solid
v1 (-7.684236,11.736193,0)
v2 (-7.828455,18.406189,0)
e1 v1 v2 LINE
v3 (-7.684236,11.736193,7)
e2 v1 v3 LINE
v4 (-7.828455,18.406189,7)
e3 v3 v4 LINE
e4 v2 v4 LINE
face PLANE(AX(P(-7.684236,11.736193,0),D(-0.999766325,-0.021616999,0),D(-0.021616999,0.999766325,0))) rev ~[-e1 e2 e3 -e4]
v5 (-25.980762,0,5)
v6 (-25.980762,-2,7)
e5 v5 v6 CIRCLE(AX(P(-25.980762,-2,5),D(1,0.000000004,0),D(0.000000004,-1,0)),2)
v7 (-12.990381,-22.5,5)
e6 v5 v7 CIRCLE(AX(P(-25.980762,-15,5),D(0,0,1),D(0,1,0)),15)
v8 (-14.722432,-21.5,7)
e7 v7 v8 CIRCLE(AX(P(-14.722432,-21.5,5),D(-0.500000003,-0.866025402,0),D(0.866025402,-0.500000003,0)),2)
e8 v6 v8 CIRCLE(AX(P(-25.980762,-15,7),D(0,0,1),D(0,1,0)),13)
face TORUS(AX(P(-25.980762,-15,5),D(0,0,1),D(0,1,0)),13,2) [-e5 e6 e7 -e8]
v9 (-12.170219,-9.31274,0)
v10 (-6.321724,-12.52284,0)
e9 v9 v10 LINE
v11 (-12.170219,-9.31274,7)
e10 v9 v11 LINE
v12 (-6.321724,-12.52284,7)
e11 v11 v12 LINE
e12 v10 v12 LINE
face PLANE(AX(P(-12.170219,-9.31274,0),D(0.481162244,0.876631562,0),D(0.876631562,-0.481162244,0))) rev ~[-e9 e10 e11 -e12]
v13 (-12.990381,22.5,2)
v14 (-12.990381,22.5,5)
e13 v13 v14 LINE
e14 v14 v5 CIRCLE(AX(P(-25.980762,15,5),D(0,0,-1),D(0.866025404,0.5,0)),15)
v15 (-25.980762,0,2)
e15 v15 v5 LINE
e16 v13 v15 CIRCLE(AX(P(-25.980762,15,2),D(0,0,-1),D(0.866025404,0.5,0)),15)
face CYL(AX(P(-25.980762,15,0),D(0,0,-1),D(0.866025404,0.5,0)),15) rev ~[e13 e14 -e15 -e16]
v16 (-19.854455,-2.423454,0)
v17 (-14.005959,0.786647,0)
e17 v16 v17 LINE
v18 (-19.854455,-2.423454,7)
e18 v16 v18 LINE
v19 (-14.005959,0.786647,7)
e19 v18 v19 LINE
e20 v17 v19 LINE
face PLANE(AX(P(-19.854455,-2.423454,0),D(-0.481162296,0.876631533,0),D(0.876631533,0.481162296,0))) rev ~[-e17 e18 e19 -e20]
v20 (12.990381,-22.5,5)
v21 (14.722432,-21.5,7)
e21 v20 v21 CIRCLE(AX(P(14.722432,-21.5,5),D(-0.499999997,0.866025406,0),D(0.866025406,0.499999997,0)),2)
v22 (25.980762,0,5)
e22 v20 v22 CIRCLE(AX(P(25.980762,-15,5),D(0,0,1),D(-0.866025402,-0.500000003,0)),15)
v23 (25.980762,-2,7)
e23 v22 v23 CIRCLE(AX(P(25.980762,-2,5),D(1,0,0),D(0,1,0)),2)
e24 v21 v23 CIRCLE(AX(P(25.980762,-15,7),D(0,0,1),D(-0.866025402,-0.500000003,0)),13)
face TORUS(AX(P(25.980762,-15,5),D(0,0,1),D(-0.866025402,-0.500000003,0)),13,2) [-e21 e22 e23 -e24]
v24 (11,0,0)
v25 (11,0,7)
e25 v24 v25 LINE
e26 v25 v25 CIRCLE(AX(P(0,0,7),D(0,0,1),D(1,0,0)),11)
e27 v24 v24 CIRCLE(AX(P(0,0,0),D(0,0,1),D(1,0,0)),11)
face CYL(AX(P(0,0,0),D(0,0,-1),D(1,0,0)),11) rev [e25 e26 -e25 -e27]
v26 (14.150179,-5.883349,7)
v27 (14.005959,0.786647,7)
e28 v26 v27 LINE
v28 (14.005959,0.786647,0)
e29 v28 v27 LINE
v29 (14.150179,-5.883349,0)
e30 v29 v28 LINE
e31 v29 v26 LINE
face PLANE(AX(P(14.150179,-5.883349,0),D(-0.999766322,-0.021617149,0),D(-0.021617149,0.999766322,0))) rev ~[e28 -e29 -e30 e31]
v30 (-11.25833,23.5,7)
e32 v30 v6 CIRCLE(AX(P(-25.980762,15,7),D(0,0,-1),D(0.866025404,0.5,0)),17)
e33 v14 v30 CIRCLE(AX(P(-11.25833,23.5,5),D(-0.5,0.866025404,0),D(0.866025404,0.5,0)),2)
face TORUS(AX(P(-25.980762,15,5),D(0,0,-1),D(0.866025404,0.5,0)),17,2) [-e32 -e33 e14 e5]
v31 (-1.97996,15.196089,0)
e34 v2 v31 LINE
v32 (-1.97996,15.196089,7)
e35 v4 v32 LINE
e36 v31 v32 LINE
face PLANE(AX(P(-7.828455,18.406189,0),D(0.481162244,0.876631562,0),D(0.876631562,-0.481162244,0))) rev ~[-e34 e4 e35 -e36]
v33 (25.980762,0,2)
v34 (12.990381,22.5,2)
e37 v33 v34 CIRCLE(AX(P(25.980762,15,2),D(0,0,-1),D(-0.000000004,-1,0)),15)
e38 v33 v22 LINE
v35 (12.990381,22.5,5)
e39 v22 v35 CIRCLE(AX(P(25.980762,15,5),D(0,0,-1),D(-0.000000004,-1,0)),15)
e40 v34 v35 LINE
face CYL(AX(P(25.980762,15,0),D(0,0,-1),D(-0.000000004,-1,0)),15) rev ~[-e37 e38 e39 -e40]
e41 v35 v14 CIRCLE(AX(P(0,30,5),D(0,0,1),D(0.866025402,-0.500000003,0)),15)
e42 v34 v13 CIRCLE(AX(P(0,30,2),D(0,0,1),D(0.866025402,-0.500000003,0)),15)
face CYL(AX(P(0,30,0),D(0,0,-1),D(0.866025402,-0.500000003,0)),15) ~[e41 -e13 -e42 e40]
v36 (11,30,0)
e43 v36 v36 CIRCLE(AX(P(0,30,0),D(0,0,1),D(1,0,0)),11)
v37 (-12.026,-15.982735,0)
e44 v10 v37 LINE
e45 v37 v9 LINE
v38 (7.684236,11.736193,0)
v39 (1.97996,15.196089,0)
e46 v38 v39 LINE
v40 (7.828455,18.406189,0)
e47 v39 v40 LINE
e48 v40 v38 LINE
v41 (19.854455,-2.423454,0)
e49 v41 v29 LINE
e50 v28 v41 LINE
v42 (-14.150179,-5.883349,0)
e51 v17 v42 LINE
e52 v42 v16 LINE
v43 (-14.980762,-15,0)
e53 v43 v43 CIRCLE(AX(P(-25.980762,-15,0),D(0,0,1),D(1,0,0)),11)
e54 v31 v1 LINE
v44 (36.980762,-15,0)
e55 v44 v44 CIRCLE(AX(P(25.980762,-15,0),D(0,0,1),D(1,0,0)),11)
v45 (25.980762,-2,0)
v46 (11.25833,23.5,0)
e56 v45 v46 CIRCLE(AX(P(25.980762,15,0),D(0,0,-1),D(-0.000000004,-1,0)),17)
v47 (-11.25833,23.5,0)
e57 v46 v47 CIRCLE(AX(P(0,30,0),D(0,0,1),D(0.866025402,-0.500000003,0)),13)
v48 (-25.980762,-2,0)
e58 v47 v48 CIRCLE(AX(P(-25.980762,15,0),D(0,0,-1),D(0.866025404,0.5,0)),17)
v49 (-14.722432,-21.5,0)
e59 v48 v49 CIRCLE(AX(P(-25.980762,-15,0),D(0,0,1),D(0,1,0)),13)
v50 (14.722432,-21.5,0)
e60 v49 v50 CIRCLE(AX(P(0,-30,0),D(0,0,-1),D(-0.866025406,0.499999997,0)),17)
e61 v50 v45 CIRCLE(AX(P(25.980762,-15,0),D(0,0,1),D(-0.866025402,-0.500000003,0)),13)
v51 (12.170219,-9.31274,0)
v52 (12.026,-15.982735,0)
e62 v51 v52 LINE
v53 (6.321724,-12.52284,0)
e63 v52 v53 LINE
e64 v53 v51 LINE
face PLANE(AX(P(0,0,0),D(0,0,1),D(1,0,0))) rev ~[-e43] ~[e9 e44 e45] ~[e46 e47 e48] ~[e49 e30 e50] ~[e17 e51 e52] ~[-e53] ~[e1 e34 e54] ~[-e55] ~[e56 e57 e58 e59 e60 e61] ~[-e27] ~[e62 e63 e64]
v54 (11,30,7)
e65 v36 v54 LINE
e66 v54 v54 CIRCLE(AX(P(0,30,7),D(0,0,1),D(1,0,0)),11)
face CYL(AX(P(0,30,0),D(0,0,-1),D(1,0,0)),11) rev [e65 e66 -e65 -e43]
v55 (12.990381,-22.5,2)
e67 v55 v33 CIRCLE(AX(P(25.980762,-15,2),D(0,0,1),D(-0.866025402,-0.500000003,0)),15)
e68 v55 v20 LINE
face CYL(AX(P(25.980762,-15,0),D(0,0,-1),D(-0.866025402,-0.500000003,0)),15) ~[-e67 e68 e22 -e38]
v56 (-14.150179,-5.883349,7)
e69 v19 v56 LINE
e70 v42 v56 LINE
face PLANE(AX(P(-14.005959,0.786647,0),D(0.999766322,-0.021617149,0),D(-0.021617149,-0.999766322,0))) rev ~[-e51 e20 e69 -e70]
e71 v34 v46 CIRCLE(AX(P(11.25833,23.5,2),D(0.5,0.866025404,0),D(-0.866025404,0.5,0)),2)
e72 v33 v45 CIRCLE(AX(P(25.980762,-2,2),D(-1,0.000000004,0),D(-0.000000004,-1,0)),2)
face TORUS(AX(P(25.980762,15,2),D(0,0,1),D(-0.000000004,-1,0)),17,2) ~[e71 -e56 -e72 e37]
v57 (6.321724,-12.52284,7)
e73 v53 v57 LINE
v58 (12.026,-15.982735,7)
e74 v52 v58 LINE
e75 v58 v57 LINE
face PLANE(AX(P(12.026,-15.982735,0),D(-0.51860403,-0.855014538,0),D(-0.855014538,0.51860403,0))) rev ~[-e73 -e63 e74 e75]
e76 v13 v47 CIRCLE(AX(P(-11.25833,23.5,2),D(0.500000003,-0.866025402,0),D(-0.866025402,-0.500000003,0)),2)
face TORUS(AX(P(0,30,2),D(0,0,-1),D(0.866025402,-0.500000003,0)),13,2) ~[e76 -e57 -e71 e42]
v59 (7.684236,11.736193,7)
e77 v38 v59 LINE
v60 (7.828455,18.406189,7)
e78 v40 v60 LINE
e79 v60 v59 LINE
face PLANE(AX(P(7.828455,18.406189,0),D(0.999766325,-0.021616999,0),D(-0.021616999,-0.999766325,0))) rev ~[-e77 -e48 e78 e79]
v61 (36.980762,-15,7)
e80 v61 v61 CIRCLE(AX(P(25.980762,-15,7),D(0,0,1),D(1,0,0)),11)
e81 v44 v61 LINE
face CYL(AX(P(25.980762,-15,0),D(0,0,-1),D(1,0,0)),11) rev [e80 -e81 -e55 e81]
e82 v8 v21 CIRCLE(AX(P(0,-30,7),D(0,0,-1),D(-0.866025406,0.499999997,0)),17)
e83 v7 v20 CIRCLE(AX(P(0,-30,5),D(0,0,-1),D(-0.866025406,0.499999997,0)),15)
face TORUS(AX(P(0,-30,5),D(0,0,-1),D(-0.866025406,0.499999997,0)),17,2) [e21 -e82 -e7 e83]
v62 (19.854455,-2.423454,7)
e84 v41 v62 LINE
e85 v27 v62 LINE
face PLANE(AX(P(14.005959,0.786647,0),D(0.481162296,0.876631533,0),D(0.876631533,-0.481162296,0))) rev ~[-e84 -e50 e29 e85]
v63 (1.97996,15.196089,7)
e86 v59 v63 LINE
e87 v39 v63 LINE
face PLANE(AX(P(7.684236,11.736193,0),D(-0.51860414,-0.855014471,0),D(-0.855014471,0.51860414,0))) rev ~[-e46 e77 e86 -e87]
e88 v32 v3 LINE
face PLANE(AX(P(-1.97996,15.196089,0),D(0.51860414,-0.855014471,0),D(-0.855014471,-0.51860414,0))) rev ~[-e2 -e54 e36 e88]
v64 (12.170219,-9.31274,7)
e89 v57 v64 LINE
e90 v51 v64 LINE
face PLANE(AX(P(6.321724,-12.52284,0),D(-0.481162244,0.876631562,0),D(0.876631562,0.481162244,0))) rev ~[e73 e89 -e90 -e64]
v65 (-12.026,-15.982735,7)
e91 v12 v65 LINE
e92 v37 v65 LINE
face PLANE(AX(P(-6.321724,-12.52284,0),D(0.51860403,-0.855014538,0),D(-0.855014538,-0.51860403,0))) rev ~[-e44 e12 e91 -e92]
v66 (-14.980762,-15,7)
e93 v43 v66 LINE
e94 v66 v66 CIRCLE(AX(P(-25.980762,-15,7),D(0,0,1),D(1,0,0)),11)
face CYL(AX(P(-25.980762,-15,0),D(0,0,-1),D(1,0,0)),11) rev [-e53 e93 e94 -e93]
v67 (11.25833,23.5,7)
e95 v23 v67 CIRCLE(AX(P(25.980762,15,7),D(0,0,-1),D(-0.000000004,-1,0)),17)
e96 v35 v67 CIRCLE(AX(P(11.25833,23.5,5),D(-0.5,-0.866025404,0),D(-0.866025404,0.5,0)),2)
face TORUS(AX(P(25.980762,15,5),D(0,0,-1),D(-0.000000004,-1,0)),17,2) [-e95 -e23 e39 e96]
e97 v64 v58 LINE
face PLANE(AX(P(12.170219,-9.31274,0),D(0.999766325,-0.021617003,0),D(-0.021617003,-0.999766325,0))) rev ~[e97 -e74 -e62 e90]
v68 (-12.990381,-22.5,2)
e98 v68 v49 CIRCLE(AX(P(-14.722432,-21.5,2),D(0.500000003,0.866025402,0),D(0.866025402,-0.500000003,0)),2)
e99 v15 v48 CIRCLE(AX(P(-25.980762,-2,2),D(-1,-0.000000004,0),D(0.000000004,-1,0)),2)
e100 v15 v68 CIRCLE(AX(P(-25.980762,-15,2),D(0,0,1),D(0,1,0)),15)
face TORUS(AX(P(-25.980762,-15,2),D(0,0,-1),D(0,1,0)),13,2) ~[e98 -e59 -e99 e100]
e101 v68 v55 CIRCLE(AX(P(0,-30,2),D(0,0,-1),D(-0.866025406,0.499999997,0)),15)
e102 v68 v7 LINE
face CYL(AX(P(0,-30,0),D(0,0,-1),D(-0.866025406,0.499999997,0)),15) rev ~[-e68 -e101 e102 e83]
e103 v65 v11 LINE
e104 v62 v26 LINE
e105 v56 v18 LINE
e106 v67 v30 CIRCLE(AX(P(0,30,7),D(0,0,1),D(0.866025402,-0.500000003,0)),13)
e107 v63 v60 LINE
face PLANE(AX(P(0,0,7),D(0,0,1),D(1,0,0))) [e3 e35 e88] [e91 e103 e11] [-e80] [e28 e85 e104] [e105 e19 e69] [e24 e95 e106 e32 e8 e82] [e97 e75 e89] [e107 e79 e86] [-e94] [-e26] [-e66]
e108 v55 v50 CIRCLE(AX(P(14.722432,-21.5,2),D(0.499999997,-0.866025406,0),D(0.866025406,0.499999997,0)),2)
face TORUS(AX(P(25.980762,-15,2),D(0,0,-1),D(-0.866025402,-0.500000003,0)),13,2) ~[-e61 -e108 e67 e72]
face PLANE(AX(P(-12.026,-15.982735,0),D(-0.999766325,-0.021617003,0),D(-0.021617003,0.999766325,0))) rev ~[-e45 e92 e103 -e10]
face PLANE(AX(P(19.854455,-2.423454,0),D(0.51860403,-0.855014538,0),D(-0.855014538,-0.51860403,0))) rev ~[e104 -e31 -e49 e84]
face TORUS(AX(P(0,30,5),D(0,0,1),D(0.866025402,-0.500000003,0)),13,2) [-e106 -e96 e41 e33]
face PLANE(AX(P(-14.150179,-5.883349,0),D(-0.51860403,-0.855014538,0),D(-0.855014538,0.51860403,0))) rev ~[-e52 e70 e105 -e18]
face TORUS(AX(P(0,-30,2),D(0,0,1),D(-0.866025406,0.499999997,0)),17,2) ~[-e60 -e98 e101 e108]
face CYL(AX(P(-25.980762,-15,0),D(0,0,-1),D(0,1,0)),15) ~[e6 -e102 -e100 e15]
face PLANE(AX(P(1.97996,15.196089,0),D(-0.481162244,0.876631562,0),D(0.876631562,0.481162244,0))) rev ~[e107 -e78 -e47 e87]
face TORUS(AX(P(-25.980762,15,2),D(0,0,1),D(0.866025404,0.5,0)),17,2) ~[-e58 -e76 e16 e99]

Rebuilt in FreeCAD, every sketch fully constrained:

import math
import FreeCAD as App
import Part
import Sketcher


def edges_at(feature, points):
    """Names of the edges that pass closest to the given points."""
    edges = feature.Shape.Edges
    near = lambda p: min(range(len(edges)), key=lambda i: edges[i].distToShape(Part.Vertex(*p))[0])
    return sorted({f"Edge{near(p) + 1}" for p in points})

doc = App.newDocument("Part")
body = doc.addObject("PartDesign::Body", "Body")

sketch1 = body.newObject("Sketcher::SketchObject", "Sketch")
sketch1.AttachmentSupport = (doc.getObject("XY_Plane"), [""])
sketch1.MapMode = "FlatFace"
sketch1.addGeometry(Part.ArcOfCircle(Part.Circle(App.Vector(26, 15, 0), App.Vector(0, 0, 1), 15), math.radians(150), math.radians(270)), False)
sketch1.addGeometry(Part.ArcOfCircle(Part.Circle(App.Vector(0, 30, 0), App.Vector(0, 0, 1), 15), math.radians(-30), math.radians(210)), False)
sketch1.addGeometry(Part.ArcOfCircle(Part.Circle(App.Vector(-26, 15, 0), App.Vector(0, 0, 1), 15), math.radians(-90), math.radians(30)), False)
sketch1.addGeometry(Part.ArcOfCircle(Part.Circle(App.Vector(-26, -15, 0), App.Vector(0, 0, 1), 15), math.radians(90), math.radians(330)), False)
sketch1.addGeometry(Part.ArcOfCircle(Part.Circle(App.Vector(0, -30, 0), App.Vector(0, 0, 1), 15), math.radians(30), math.radians(150)), False)
sketch1.addGeometry(Part.ArcOfCircle(Part.Circle(App.Vector(26, -15, 0), App.Vector(0, 0, 1), 15), math.radians(-150), math.radians(90)), False)
sketch1.addGeometry(Part.Circle(App.Vector(-26, -15, 0), App.Vector(0, 0, 1), 11), False)
sketch1.addGeometry(Part.LineSegment(App.Vector(-6, -13, 0), App.Vector(-12, -16, 0)), False)
sketch1.addGeometry(Part.LineSegment(App.Vector(-12, -16, 0), App.Vector(-12, -9, 0)), False)
sketch1.addGeometry(Part.LineSegment(App.Vector(-12, -9, 0), App.Vector(-6, -13, 0)), False)
sketch1.addGeometry(Part.LineSegment(App.Vector(-20, -2, 0), App.Vector(-14, 1, 0)), False)
sketch1.addGeometry(Part.LineSegment(App.Vector(-14, 1, 0), App.Vector(-14, -6, 0)), False)
sketch1.addGeometry(Part.LineSegment(App.Vector(-14, -6, 0), App.Vector(-20, -2, 0)), False)
sketch1.addGeometry(Part.LineSegment(App.Vector(12, -16, 0), App.Vector(6, -13, 0)), False)
sketch1.addGeometry(Part.LineSegment(App.Vector(6, -13, 0), App.Vector(12, -9, 0)), False)
sketch1.addGeometry(Part.LineSegment(App.Vector(12, -9, 0), App.Vector(12, -16, 0)), False)
sketch1.addGeometry(Part.Circle(App.Vector(26, -15, 0), App.Vector(0, 0, 1), 11), False)
sketch1.addGeometry(Part.LineSegment(App.Vector(20, -2, 0), App.Vector(14, -6, 0)), False)
sketch1.addGeometry(Part.LineSegment(App.Vector(14, -6, 0), App.Vector(14, 1, 0)), False)
sketch1.addGeometry(Part.LineSegment(App.Vector(14, 1, 0), App.Vector(20, -2, 0)), False)
sketch1.addGeometry(Part.Circle(App.Vector(0, 0, 0), App.Vector(0, 0, 1), 11), False)
sketch1.addGeometry(Part.LineSegment(App.Vector(-2, 15, 0), App.Vector(-8, 12, 0)), False)
sketch1.addGeometry(Part.LineSegment(App.Vector(-8, 12, 0), App.Vector(-8, 18, 0)), False)
sketch1.addGeometry(Part.LineSegment(App.Vector(-8, 18, 0), App.Vector(-2, 15, 0)), False)
sketch1.addGeometry(Part.LineSegment(App.Vector(8, 12, 0), App.Vector(2, 15, 0)), False)
sketch1.addGeometry(Part.LineSegment(App.Vector(2, 15, 0), App.Vector(8, 18, 0)), False)
sketch1.addGeometry(Part.LineSegment(App.Vector(8, 18, 0), App.Vector(8, 12, 0)), False)
sketch1.addGeometry(Part.Circle(App.Vector(0, 30, 0), App.Vector(0, 0, 1), 11), False)
sketch1.addConstraint(Sketcher.Constraint("Tangent", 0, 1, 1, 1))
sketch1.addConstraint(Sketcher.Constraint("Tangent", 1, 2, 2, 2))
sketch1.addConstraint(Sketcher.Constraint("Tangent", 2, 1, 3, 1))
sketch1.addConstraint(Sketcher.Constraint("Tangent", 3, 2, 4, 2))
sketch1.addConstraint(Sketcher.Constraint("Tangent", 4, 1, 5, 1))
sketch1.addConstraint(Sketcher.Constraint("Tangent", 5, 2, 0, 2))
sketch1.addConstraint(Sketcher.Constraint("Coincident", 7, 2, 8, 1))
sketch1.addConstraint(Sketcher.Constraint("Coincident", 8, 2, 9, 1))
sketch1.addConstraint(Sketcher.Constraint("Coincident", 9, 2, 7, 1))
sketch1.addConstraint(Sketcher.Constraint("Coincident", 10, 2, 11, 1))
sketch1.addConstraint(Sketcher.Constraint("Coincident", 11, 2, 12, 1))
sketch1.addConstraint(Sketcher.Constraint("Coincident", 12, 2, 10, 1))
sketch1.addConstraint(Sketcher.Constraint("Coincident", 13, 2, 14, 1))
sketch1.addConstraint(Sketcher.Constraint("Coincident", 14, 2, 15, 1))
sketch1.addConstraint(Sketcher.Constraint("Coincident", 15, 2, 13, 1))
sketch1.addConstraint(Sketcher.Constraint("Coincident", 17, 2, 18, 1))
sketch1.addConstraint(Sketcher.Constraint("Coincident", 18, 2, 19, 1))
sketch1.addConstraint(Sketcher.Constraint("Coincident", 19, 2, 17, 1))
sketch1.addConstraint(Sketcher.Constraint("Coincident", 21, 2, 22, 1))
sketch1.addConstraint(Sketcher.Constraint("Coincident", 22, 2, 23, 1))
sketch1.addConstraint(Sketcher.Constraint("Coincident", 23, 2, 21, 1))
sketch1.addConstraint(Sketcher.Constraint("Coincident", 24, 2, 25, 1))
sketch1.addConstraint(Sketcher.Constraint("Coincident", 25, 2, 26, 1))
sketch1.addConstraint(Sketcher.Constraint("Coincident", 26, 2, 24, 1))
sketch1.addConstraint(Sketcher.Constraint("Coincident", 20, 3, -1, 1))
sketch1.addConstraint(Sketcher.Constraint("Coincident", 6, 3, 3, 3))
sketch1.addConstraint(Sketcher.Constraint("Coincident", 16, 3, 5, 3))
sketch1.addConstraint(Sketcher.Constraint("Coincident", 27, 3, 1, 3))
sketch1.addConstraint(Sketcher.Constraint("Equal", 0, 1))
sketch1.addConstraint(Sketcher.Constraint("Equal", 1, 2))
sketch1.addConstraint(Sketcher.Constraint("Equal", 2, 3))
sketch1.addConstraint(Sketcher.Constraint("Equal", 3, 4))
sketch1.addConstraint(Sketcher.Constraint("Equal", 4, 5))
sketch1.addConstraint(Sketcher.Constraint("Equal", 6, 16))
sketch1.addConstraint(Sketcher.Constraint("Equal", 16, 20))
sketch1.addConstraint(Sketcher.Constraint("Equal", 20, 27))
sketch1.addConstraint(Sketcher.Constraint("Symmetric", 0, 3, 3, 3, -1, 1))
sketch1.addConstraint(Sketcher.Constraint("Symmetric", 0, 3, 2, 3, -2))
sketch1.addConstraint(Sketcher.Constraint("Symmetric", 9, 2, 13, 2, -2))
sketch1.addConstraint(Sketcher.Constraint("Symmetric", 8, 2, 14, 2, -2))
sketch1.addConstraint(Sketcher.Constraint("Symmetric", 7, 2, 15, 2, -2))
sketch1.addConstraint(Sketcher.Constraint("Symmetric", 11, 2, 17, 2, -2))
sketch1.addConstraint(Sketcher.Constraint("Symmetric", 10, 2, 18, 2, -2))
sketch1.addConstraint(Sketcher.Constraint("Symmetric", 12, 2, 19, 2, -2))
sketch1.addConstraint(Sketcher.Constraint("Symmetric", 23, 2, 24, 2, -2))
sketch1.addConstraint(Sketcher.Constraint("Symmetric", 22, 2, 25, 2, -2))
sketch1.addConstraint(Sketcher.Constraint("Symmetric", 21, 2, 26, 2, -2))
sketch1.addConstraint(Sketcher.Constraint("PointOnObject", 4, 3, -2))
sketch1.addConstraint(Sketcher.Constraint("Parallel", 12, 13))
sketch1.addConstraint(Sketcher.Constraint("Parallel", 10, 14))
sketch1.addConstraint(Sketcher.Constraint("Parallel", 11, 15))
sketch1.addConstraint(Sketcher.Constraint("Parallel", 17, 21))
sketch1.addConstraint(Sketcher.Constraint("Parallel", 18, 22))
sketch1.addConstraint(Sketcher.Constraint("Parallel", 19, 23))
sketch1.addConstraint(Sketcher.Constraint("Equal", 7, 8))
sketch1.addConstraint(Sketcher.Constraint("Equal", 8, 9))
sketch1.addConstraint(Sketcher.Constraint("Equal", 9, 10))
sketch1.addConstraint(Sketcher.Constraint("Equal", 19, 21))
sketch1.addConstraint(Sketcher.Constraint("Diameter", 6, 22.0))
sketch1.addConstraint(Sketcher.Constraint("Radius", 0, 15.0))
sketch1.addConstraint(Sketcher.Constraint("DistanceY", -1, 1, 1, 3, 30.0))
sketch1.addConstraint(Sketcher.Constraint("DistanceX", 7, 2, -1, 1, 12.026))
sketch1.addConstraint(Sketcher.Constraint("DistanceY", 9, 2, 8, 2, 3.2101))
sketch1.addConstraint(Sketcher.Constraint("DistanceX", 8, 2, -1, 1, 12.170219))
sketch1.addConstraint(Sketcher.Constraint("DistanceY", 8, 2, -1, 1, 9.31274))
sketch1.addConstraint(Sketcher.Constraint("DistanceX", 10, 2, -1, 1, 14.005959))
sketch1.addConstraint(Sketcher.Constraint("DistanceY", 11, 2, -1, 1, 5.883349))
sketch1.addConstraint(Sketcher.Constraint("DistanceY", -1, 1, 22, 2, 18.406189))
sketch1.addConstraint(Sketcher.Constraint("DistanceX", 23, 2, -1, 1, 1.97996))
pad1 = body.newObject("PartDesign::Pad", "Pad")
pad1.Profile = sketch1
pad1.Length = 7
doc.recompute()

fillet = body.newObject("PartDesign::Fillet", "Fillet")
fillet.Base = (pad1, edges_at(pad1, [
    (-12.99, 7.5, 7),
    (0, 45, 7),
    (12.99, 7.5, 0),
    (12.99, 7.5, 7),
    (38.971, -22.5, 7),
    (0, -15, 7),
    (-38.971, -22.5, 7),
    (0, 45, 0),
    (-12.99, 7.5, 0),
    (-38.971, -22.5, 0),
    (0, -15, 0),
    (38.971, -22.5, 0),
]))
fillet.Radius = 2

doc.recompute()
